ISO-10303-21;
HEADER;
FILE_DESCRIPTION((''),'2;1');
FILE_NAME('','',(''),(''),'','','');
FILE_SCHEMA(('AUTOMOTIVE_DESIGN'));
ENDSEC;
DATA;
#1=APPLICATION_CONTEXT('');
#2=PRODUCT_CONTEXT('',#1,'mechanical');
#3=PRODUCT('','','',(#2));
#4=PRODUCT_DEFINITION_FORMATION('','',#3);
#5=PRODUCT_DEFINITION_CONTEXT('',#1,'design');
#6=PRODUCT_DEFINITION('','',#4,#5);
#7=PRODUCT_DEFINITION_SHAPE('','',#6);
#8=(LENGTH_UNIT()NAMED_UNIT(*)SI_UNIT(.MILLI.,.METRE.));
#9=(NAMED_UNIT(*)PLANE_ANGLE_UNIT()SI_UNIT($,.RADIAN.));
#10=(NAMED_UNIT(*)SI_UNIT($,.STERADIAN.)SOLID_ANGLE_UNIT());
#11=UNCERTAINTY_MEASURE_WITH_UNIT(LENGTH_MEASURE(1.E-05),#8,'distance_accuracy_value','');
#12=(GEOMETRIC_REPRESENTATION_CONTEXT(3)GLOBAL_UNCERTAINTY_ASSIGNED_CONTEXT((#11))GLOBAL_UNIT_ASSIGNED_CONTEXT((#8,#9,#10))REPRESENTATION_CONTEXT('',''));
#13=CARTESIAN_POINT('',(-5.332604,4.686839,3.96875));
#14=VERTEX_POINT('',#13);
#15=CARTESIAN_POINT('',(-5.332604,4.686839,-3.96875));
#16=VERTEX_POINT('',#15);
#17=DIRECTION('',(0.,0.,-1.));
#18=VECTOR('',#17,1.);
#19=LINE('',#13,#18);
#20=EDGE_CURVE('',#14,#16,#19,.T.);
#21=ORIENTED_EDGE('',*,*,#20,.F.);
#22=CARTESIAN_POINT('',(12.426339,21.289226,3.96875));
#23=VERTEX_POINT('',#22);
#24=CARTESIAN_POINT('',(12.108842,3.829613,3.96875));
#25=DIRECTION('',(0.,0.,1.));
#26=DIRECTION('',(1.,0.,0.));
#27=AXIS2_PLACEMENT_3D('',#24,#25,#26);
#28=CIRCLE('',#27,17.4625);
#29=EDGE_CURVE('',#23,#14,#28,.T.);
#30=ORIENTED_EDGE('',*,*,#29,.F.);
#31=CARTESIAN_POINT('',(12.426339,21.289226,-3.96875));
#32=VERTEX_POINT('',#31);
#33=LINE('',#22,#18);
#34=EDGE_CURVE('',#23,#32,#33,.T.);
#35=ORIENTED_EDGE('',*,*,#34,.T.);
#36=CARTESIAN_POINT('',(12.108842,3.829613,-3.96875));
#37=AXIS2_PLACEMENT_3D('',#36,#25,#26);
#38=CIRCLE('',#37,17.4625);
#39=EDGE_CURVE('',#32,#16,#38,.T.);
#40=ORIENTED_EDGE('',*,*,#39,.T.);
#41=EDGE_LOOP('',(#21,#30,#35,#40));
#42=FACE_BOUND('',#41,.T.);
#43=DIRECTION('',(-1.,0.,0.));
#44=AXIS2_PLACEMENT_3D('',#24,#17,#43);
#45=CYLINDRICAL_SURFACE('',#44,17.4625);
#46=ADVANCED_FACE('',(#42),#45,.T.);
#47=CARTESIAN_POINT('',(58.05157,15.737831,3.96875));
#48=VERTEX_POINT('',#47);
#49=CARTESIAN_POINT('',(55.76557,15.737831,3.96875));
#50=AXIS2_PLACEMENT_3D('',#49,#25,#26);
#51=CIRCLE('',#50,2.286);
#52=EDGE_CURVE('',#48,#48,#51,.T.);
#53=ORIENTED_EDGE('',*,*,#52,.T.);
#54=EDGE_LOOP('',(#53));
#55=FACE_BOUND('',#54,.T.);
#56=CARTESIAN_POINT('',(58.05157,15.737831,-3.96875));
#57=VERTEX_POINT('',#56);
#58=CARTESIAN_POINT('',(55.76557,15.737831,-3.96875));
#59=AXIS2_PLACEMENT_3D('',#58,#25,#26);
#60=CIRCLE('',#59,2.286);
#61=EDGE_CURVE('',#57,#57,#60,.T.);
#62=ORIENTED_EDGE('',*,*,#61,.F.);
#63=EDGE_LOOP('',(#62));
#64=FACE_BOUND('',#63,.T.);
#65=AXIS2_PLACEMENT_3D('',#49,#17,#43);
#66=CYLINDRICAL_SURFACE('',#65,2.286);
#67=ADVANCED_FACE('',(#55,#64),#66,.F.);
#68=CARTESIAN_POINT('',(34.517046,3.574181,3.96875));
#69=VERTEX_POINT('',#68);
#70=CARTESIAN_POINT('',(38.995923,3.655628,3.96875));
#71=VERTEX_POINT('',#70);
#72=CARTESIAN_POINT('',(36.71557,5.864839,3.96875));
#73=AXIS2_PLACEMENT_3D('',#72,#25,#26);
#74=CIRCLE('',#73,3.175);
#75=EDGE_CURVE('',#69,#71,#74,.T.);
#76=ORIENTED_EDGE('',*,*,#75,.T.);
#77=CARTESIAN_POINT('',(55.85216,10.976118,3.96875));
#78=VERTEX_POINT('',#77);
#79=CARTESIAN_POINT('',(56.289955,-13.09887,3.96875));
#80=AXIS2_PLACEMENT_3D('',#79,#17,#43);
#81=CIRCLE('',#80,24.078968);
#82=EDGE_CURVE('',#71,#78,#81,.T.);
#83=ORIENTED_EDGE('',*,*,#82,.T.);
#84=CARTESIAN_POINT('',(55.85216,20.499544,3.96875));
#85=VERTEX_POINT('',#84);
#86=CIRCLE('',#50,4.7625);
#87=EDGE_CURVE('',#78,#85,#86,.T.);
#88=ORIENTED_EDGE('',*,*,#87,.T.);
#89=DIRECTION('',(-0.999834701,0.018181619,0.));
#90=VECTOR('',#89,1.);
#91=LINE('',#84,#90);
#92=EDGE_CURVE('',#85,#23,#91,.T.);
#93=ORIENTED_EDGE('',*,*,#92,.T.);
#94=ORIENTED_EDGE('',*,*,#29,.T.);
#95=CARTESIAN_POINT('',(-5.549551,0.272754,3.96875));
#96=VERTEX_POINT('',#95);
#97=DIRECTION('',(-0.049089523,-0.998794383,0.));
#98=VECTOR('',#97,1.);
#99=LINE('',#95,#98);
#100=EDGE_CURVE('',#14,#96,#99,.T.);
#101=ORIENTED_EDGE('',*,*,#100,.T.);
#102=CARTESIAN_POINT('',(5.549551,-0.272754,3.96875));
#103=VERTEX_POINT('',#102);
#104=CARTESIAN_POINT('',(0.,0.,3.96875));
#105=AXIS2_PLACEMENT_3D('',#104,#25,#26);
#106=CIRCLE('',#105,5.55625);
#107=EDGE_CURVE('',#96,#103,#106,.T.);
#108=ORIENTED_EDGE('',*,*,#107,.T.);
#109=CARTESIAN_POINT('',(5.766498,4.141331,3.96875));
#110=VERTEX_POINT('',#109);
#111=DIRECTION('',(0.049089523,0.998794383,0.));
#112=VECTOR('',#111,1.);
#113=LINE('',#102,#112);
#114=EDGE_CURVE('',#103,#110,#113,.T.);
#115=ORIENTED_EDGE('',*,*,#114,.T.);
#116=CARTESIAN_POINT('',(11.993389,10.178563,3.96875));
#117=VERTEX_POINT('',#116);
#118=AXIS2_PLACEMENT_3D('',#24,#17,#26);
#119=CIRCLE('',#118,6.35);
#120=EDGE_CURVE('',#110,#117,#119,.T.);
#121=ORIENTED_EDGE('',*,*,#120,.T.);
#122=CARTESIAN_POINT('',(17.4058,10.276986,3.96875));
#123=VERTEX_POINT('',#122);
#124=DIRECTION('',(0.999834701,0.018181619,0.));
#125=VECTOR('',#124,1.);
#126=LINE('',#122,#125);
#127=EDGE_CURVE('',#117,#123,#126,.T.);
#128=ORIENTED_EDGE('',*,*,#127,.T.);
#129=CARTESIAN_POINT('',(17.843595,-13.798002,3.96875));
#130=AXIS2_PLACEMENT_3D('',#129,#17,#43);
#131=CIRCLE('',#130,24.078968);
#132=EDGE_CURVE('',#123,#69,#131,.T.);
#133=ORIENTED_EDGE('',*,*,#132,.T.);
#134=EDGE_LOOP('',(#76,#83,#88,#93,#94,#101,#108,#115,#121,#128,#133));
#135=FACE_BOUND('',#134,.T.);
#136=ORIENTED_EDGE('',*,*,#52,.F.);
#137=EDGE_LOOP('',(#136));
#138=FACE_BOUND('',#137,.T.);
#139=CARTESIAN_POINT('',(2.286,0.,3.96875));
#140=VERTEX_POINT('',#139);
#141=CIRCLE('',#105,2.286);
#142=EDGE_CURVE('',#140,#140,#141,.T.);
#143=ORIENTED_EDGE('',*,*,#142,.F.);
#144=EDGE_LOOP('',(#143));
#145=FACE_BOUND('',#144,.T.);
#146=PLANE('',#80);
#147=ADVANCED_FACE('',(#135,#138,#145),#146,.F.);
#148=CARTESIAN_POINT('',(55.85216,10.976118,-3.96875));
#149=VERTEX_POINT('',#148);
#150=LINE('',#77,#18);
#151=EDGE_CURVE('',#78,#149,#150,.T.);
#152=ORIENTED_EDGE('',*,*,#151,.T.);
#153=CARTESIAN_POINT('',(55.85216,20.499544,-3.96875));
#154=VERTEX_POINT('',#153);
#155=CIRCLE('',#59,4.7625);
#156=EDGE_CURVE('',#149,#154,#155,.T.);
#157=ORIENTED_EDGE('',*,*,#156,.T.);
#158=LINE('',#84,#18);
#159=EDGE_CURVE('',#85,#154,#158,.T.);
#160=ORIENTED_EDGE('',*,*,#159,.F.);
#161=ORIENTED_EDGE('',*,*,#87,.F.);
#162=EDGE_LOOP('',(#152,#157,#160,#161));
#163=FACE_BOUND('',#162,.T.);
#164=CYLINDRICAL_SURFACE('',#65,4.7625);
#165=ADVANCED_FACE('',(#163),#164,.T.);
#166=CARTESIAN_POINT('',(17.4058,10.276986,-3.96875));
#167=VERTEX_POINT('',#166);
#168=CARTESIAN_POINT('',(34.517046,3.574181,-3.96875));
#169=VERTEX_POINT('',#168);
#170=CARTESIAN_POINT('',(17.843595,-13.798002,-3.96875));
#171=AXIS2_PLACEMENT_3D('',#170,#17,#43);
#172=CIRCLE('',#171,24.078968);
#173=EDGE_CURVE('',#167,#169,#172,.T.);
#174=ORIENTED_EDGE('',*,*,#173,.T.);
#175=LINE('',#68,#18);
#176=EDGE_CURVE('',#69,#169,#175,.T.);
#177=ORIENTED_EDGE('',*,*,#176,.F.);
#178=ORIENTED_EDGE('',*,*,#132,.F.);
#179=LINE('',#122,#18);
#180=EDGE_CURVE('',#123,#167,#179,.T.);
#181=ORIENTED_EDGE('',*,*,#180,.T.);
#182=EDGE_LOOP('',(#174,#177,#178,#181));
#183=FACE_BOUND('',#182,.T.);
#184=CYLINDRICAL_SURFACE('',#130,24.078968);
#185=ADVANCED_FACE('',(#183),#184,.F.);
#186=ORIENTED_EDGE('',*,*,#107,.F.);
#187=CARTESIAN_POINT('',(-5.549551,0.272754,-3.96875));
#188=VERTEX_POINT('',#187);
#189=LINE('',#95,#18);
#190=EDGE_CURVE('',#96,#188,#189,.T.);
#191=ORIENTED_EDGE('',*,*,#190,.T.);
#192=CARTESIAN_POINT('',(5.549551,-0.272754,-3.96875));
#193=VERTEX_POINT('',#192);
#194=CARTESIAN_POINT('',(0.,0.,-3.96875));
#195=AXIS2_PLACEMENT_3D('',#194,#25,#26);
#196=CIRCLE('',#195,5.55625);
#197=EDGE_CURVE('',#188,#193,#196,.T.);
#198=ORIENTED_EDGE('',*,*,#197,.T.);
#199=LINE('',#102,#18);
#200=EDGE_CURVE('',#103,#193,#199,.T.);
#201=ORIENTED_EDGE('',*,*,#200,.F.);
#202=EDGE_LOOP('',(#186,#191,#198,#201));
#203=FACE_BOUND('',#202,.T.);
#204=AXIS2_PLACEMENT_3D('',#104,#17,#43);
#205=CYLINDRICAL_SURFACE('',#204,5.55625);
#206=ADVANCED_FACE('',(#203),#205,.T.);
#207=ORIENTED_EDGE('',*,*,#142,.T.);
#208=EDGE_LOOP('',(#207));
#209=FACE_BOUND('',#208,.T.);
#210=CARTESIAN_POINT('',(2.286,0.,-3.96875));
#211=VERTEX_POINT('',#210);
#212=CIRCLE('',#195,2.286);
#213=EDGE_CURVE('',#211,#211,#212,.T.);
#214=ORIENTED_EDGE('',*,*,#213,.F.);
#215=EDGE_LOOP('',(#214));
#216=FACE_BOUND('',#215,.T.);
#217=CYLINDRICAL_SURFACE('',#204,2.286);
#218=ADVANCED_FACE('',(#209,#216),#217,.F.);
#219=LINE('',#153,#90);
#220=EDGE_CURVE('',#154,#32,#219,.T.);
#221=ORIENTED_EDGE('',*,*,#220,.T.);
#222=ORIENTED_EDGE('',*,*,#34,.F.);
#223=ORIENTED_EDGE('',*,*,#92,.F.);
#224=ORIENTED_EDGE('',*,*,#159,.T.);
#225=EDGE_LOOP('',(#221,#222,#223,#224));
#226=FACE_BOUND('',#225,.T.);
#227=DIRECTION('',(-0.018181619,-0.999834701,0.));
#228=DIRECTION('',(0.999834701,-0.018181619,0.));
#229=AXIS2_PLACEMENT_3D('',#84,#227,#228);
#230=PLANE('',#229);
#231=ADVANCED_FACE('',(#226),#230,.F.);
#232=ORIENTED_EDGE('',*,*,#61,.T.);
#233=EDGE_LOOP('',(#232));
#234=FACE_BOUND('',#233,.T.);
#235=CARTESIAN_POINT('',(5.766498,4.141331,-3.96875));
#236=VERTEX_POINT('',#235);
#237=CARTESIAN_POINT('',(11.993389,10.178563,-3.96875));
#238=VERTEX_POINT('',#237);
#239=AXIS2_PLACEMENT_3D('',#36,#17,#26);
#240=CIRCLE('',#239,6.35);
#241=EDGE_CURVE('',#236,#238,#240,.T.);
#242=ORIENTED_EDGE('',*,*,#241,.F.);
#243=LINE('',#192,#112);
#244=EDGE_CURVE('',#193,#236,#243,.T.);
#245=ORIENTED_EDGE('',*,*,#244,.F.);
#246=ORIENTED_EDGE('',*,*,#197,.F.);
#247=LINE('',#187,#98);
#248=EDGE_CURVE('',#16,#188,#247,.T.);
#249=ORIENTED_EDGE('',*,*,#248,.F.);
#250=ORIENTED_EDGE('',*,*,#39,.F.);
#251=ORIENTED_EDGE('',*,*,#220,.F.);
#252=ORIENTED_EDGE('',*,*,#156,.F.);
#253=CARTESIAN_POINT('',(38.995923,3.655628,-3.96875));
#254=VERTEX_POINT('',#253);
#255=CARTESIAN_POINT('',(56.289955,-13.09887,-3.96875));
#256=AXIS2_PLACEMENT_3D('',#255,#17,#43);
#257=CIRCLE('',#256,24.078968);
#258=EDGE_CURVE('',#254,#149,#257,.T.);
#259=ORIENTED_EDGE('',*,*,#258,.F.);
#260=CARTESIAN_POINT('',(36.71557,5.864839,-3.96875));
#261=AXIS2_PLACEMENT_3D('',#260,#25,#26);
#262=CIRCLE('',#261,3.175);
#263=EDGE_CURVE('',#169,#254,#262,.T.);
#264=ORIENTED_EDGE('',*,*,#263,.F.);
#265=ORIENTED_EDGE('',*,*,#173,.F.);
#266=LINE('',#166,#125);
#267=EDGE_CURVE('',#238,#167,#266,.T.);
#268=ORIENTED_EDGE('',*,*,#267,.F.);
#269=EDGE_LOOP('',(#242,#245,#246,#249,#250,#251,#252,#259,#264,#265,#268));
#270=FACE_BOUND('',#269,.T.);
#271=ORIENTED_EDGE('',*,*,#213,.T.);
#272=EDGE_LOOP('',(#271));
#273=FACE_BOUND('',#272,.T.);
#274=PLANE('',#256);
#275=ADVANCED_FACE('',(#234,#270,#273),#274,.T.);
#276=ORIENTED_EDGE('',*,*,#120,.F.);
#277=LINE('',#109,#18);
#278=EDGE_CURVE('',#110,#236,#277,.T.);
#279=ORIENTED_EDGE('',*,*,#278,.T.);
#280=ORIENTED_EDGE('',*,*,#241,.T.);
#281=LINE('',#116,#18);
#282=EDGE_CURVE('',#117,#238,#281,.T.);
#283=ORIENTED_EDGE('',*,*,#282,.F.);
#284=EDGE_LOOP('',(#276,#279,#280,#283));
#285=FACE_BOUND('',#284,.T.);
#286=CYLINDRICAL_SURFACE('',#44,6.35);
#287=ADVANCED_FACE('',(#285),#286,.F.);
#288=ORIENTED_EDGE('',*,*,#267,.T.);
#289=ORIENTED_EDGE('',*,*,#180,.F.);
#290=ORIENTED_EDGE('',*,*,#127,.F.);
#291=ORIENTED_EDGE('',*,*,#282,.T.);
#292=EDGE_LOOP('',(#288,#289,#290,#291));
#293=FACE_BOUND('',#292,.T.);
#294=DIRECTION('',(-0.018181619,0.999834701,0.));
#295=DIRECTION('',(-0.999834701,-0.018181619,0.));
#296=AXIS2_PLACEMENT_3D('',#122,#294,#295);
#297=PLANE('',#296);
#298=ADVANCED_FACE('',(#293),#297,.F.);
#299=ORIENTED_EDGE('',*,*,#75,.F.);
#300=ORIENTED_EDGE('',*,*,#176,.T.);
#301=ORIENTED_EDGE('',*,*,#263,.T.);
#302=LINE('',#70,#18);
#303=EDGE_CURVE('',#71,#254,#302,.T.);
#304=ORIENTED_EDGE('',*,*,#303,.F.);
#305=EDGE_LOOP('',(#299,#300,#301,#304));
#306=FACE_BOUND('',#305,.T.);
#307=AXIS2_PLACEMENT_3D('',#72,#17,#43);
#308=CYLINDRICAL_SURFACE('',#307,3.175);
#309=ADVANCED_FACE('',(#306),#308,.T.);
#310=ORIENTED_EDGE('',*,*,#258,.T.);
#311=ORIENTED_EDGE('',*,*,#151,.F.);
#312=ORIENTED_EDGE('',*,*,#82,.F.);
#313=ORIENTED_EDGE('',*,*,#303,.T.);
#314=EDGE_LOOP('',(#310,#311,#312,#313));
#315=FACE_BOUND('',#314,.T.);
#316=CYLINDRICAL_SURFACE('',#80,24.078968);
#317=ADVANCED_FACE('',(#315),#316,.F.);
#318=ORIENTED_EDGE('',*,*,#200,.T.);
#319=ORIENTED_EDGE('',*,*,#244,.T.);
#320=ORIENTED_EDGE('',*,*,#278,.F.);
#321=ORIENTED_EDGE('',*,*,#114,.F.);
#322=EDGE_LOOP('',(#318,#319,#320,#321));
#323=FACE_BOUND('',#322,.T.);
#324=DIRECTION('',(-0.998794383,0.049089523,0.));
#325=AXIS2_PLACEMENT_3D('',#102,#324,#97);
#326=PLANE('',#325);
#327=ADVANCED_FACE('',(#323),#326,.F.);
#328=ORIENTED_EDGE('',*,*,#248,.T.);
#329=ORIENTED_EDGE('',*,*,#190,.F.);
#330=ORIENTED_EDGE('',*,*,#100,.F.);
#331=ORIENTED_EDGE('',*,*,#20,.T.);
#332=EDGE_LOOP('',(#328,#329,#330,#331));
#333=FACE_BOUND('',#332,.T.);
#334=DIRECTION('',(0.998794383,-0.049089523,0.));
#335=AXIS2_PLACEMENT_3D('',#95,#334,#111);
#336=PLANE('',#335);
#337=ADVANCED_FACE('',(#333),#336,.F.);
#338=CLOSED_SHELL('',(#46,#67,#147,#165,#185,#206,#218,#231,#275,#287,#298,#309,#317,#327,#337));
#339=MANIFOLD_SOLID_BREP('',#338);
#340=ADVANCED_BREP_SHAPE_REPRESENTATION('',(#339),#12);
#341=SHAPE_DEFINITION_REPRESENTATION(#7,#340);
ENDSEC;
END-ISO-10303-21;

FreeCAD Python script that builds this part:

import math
import FreeCAD as App
import Part
import Sketcher

V = App.Vector
Q = App.Units.Quantity

doc = App.newDocument("Part")
body = doc.addObject("PartDesign::Body", "Body")

# Sketch on XY plane
sketch1 = body.newObject("Sketcher::SketchObject", "Sketch")
sketch1.AttachmentSupport = (doc.getObject("XY_Plane"), [""])
sketch1.MapMode = "FlatFace"
sketch1.addGeometry(Part.LineSegment(V(55.85216, 20.499544, 0), V(12.426339, 21.289226, 0)), False)
sketch1.addGeometry(Part.ArcOfCircle(Part.Circle(V(12.108842, 3.829613, 0), V(0, 0, 1), 17.4625), math.radians(88.958213), math.radians(177.186247)), False)
sketch1.addGeometry(Part.LineSegment(V(-5.332604, 4.686839, 0), V(-5.549551, 0.272754, 0)), False)
sketch1.addGeometry(Part.ArcOfCircle(Part.Circle(V(0, 0, 0), V(0, 0, 1), 5.55625), math.radians(177.186247), math.radians(357.186247)), False)
sketch1.addGeometry(Part.LineSegment(V(5.549551, -0.272754, 0), V(5.766498, 4.141331, 0)), False)
sketch1.addGeometry(Part.ArcOfCircle(Part.Circle(V(12.108842, 3.829613, 0), V(0, 0, 1), 6.35), math.radians(91.041787), math.radians(177.186247)), False)
sketch1.addGeometry(Part.LineSegment(V(11.993389, 10.178563, 0), V(17.4058, 10.276986, 0)), False)
sketch1.addGeometry(Part.ArcOfCircle(Part.Circle(V(17.843595, -13.798002, 0), V(0, 0, 1), 24.078968), math.radians(46.175741), math.radians(91.041787)), False)
sketch1.addGeometry(Part.ArcOfCircle(Part.Circle(V(36.71557, 5.864839, 0), V(0, 0, 1), 3.175), math.radians(-133.824259), math.radians(-44.092166)), False)
sketch1.addGeometry(Part.ArcOfCircle(Part.Circle(V(56.289955, -13.09887, 0), V(0, 0, 1), 24.078968), math.radians(91.041787), math.radians(135.907834)), False)
sketch1.addGeometry(Part.ArcOfCircle(Part.Circle(V(55.76557, 15.737831, 0), V(0, 0, 1), 4.7625), math.radians(-88.958213), math.radians(88.958213)), False)
sketch1.addGeometry(Part.Circle(V(0, 0, 0), V(0, 0, 1), 2.286), False)
sketch1.addGeometry(Part.Circle(V(55.76557, 15.737831, 0), V(0, 0, 1), 2.286), False)
sketch1.addConstraint(Sketcher.Constraint("Tangent", 0, 2, 1, 1))
sketch1.addConstraint(Sketcher.Constraint("Tangent", 1, 2, 2, 1))
sketch1.addConstraint(Sketcher.Constraint("Tangent", 2, 2, 3, 1))
sketch1.addConstraint(Sketcher.Constraint("Tangent", 3, 2, 4, 1))
sketch1.addConstraint(Sketcher.Constraint("Tangent", 4, 2, 5, 2))
sketch1.addConstraint(Sketcher.Constraint("Tangent", 5, 1, 6, 1))
sketch1.addConstraint(Sketcher.Constraint("Tangent", 6, 2, 7, 2))
sketch1.addConstraint(Sketcher.Constraint("Tangent", 7, 1, 8, 1))
sketch1.addConstraint(Sketcher.Constraint("Tangent", 8, 2, 9, 2))
sketch1.addConstraint(Sketcher.Constraint("Tangent", 9, 1, 10, 1))
sketch1.addConstraint(Sketcher.Constraint("Tangent", 10, 2, 0, 1))
sketch1.addConstraint(Sketcher.Constraint("Coincident", 3, 3, -1, 1))
sketch1.addConstraint(Sketcher.Constraint("Coincident", 11, 3, -1, 1))
sketch1.addConstraint(Sketcher.Constraint("Coincident", 5, 3, 1, 3))
sketch1.addConstraint(Sketcher.Constraint("Coincident", 12, 3, 10, 3))
sketch1.addConstraint(Sketcher.Constraint("Equal", 7, 9))
sketch1.addConstraint(Sketcher.Constraint("Equal", 11, 12))
sketch1.addConstraint(Sketcher.Constraint("Parallel", 2, 4))
sketch1.addConstraint(Sketcher.Constraint("Vertical", 9, 1, 10, 2))
sketch1.addConstraint(Sketcher.Constraint("Diameter", 11, Q("0.18 in")))
sketch1.addConstraint(Sketcher.Constraint("Radius", 5, Q("0.25 in")))
sketch1.addConstraint(Sketcher.Constraint("Radius", 1, Q("0.6875 in")))
sketch1.addConstraint(Sketcher.Constraint("Radius", 8, Q("0.125 in")))
sketch1.addConstraint(Sketcher.Constraint("Radius", 10, Q("0.1875 in")))
sketch1.addConstraint(Sketcher.Constraint("DistanceX", 8, 3, 10, 3, Q("0.75 in")))
sketch1.addConstraint(Sketcher.Constraint("Radius", 7, Q("24.078968 mm")))
sketch1.addConstraint(Sketcher.Constraint("DistanceX", 1, 3, 0, 2, Q("0.0124999 in")))
sketch1.addConstraint(Sketcher.Constraint("Distance", 0, Q("43.433001 mm")))
sketch1.addConstraint(Sketcher.Constraint("DistanceX", -1, 1, 4, 2, Q("5.766498 mm")))
sketch1.addConstraint(Sketcher.Constraint("DistanceX", -1, 1, 6, 2, Q("17.4058 mm")))
sketch1.addConstraint(Sketcher.Constraint("DistanceY", -1, 1, 8, 3, Q("5.864839 mm")))
pad1 = body.newObject("PartDesign::Pad", "Pad")
pad1.Profile = sketch1
pad1.Length = Q("0.3125 in")
pad1.Midplane = True

doc.recompute()
